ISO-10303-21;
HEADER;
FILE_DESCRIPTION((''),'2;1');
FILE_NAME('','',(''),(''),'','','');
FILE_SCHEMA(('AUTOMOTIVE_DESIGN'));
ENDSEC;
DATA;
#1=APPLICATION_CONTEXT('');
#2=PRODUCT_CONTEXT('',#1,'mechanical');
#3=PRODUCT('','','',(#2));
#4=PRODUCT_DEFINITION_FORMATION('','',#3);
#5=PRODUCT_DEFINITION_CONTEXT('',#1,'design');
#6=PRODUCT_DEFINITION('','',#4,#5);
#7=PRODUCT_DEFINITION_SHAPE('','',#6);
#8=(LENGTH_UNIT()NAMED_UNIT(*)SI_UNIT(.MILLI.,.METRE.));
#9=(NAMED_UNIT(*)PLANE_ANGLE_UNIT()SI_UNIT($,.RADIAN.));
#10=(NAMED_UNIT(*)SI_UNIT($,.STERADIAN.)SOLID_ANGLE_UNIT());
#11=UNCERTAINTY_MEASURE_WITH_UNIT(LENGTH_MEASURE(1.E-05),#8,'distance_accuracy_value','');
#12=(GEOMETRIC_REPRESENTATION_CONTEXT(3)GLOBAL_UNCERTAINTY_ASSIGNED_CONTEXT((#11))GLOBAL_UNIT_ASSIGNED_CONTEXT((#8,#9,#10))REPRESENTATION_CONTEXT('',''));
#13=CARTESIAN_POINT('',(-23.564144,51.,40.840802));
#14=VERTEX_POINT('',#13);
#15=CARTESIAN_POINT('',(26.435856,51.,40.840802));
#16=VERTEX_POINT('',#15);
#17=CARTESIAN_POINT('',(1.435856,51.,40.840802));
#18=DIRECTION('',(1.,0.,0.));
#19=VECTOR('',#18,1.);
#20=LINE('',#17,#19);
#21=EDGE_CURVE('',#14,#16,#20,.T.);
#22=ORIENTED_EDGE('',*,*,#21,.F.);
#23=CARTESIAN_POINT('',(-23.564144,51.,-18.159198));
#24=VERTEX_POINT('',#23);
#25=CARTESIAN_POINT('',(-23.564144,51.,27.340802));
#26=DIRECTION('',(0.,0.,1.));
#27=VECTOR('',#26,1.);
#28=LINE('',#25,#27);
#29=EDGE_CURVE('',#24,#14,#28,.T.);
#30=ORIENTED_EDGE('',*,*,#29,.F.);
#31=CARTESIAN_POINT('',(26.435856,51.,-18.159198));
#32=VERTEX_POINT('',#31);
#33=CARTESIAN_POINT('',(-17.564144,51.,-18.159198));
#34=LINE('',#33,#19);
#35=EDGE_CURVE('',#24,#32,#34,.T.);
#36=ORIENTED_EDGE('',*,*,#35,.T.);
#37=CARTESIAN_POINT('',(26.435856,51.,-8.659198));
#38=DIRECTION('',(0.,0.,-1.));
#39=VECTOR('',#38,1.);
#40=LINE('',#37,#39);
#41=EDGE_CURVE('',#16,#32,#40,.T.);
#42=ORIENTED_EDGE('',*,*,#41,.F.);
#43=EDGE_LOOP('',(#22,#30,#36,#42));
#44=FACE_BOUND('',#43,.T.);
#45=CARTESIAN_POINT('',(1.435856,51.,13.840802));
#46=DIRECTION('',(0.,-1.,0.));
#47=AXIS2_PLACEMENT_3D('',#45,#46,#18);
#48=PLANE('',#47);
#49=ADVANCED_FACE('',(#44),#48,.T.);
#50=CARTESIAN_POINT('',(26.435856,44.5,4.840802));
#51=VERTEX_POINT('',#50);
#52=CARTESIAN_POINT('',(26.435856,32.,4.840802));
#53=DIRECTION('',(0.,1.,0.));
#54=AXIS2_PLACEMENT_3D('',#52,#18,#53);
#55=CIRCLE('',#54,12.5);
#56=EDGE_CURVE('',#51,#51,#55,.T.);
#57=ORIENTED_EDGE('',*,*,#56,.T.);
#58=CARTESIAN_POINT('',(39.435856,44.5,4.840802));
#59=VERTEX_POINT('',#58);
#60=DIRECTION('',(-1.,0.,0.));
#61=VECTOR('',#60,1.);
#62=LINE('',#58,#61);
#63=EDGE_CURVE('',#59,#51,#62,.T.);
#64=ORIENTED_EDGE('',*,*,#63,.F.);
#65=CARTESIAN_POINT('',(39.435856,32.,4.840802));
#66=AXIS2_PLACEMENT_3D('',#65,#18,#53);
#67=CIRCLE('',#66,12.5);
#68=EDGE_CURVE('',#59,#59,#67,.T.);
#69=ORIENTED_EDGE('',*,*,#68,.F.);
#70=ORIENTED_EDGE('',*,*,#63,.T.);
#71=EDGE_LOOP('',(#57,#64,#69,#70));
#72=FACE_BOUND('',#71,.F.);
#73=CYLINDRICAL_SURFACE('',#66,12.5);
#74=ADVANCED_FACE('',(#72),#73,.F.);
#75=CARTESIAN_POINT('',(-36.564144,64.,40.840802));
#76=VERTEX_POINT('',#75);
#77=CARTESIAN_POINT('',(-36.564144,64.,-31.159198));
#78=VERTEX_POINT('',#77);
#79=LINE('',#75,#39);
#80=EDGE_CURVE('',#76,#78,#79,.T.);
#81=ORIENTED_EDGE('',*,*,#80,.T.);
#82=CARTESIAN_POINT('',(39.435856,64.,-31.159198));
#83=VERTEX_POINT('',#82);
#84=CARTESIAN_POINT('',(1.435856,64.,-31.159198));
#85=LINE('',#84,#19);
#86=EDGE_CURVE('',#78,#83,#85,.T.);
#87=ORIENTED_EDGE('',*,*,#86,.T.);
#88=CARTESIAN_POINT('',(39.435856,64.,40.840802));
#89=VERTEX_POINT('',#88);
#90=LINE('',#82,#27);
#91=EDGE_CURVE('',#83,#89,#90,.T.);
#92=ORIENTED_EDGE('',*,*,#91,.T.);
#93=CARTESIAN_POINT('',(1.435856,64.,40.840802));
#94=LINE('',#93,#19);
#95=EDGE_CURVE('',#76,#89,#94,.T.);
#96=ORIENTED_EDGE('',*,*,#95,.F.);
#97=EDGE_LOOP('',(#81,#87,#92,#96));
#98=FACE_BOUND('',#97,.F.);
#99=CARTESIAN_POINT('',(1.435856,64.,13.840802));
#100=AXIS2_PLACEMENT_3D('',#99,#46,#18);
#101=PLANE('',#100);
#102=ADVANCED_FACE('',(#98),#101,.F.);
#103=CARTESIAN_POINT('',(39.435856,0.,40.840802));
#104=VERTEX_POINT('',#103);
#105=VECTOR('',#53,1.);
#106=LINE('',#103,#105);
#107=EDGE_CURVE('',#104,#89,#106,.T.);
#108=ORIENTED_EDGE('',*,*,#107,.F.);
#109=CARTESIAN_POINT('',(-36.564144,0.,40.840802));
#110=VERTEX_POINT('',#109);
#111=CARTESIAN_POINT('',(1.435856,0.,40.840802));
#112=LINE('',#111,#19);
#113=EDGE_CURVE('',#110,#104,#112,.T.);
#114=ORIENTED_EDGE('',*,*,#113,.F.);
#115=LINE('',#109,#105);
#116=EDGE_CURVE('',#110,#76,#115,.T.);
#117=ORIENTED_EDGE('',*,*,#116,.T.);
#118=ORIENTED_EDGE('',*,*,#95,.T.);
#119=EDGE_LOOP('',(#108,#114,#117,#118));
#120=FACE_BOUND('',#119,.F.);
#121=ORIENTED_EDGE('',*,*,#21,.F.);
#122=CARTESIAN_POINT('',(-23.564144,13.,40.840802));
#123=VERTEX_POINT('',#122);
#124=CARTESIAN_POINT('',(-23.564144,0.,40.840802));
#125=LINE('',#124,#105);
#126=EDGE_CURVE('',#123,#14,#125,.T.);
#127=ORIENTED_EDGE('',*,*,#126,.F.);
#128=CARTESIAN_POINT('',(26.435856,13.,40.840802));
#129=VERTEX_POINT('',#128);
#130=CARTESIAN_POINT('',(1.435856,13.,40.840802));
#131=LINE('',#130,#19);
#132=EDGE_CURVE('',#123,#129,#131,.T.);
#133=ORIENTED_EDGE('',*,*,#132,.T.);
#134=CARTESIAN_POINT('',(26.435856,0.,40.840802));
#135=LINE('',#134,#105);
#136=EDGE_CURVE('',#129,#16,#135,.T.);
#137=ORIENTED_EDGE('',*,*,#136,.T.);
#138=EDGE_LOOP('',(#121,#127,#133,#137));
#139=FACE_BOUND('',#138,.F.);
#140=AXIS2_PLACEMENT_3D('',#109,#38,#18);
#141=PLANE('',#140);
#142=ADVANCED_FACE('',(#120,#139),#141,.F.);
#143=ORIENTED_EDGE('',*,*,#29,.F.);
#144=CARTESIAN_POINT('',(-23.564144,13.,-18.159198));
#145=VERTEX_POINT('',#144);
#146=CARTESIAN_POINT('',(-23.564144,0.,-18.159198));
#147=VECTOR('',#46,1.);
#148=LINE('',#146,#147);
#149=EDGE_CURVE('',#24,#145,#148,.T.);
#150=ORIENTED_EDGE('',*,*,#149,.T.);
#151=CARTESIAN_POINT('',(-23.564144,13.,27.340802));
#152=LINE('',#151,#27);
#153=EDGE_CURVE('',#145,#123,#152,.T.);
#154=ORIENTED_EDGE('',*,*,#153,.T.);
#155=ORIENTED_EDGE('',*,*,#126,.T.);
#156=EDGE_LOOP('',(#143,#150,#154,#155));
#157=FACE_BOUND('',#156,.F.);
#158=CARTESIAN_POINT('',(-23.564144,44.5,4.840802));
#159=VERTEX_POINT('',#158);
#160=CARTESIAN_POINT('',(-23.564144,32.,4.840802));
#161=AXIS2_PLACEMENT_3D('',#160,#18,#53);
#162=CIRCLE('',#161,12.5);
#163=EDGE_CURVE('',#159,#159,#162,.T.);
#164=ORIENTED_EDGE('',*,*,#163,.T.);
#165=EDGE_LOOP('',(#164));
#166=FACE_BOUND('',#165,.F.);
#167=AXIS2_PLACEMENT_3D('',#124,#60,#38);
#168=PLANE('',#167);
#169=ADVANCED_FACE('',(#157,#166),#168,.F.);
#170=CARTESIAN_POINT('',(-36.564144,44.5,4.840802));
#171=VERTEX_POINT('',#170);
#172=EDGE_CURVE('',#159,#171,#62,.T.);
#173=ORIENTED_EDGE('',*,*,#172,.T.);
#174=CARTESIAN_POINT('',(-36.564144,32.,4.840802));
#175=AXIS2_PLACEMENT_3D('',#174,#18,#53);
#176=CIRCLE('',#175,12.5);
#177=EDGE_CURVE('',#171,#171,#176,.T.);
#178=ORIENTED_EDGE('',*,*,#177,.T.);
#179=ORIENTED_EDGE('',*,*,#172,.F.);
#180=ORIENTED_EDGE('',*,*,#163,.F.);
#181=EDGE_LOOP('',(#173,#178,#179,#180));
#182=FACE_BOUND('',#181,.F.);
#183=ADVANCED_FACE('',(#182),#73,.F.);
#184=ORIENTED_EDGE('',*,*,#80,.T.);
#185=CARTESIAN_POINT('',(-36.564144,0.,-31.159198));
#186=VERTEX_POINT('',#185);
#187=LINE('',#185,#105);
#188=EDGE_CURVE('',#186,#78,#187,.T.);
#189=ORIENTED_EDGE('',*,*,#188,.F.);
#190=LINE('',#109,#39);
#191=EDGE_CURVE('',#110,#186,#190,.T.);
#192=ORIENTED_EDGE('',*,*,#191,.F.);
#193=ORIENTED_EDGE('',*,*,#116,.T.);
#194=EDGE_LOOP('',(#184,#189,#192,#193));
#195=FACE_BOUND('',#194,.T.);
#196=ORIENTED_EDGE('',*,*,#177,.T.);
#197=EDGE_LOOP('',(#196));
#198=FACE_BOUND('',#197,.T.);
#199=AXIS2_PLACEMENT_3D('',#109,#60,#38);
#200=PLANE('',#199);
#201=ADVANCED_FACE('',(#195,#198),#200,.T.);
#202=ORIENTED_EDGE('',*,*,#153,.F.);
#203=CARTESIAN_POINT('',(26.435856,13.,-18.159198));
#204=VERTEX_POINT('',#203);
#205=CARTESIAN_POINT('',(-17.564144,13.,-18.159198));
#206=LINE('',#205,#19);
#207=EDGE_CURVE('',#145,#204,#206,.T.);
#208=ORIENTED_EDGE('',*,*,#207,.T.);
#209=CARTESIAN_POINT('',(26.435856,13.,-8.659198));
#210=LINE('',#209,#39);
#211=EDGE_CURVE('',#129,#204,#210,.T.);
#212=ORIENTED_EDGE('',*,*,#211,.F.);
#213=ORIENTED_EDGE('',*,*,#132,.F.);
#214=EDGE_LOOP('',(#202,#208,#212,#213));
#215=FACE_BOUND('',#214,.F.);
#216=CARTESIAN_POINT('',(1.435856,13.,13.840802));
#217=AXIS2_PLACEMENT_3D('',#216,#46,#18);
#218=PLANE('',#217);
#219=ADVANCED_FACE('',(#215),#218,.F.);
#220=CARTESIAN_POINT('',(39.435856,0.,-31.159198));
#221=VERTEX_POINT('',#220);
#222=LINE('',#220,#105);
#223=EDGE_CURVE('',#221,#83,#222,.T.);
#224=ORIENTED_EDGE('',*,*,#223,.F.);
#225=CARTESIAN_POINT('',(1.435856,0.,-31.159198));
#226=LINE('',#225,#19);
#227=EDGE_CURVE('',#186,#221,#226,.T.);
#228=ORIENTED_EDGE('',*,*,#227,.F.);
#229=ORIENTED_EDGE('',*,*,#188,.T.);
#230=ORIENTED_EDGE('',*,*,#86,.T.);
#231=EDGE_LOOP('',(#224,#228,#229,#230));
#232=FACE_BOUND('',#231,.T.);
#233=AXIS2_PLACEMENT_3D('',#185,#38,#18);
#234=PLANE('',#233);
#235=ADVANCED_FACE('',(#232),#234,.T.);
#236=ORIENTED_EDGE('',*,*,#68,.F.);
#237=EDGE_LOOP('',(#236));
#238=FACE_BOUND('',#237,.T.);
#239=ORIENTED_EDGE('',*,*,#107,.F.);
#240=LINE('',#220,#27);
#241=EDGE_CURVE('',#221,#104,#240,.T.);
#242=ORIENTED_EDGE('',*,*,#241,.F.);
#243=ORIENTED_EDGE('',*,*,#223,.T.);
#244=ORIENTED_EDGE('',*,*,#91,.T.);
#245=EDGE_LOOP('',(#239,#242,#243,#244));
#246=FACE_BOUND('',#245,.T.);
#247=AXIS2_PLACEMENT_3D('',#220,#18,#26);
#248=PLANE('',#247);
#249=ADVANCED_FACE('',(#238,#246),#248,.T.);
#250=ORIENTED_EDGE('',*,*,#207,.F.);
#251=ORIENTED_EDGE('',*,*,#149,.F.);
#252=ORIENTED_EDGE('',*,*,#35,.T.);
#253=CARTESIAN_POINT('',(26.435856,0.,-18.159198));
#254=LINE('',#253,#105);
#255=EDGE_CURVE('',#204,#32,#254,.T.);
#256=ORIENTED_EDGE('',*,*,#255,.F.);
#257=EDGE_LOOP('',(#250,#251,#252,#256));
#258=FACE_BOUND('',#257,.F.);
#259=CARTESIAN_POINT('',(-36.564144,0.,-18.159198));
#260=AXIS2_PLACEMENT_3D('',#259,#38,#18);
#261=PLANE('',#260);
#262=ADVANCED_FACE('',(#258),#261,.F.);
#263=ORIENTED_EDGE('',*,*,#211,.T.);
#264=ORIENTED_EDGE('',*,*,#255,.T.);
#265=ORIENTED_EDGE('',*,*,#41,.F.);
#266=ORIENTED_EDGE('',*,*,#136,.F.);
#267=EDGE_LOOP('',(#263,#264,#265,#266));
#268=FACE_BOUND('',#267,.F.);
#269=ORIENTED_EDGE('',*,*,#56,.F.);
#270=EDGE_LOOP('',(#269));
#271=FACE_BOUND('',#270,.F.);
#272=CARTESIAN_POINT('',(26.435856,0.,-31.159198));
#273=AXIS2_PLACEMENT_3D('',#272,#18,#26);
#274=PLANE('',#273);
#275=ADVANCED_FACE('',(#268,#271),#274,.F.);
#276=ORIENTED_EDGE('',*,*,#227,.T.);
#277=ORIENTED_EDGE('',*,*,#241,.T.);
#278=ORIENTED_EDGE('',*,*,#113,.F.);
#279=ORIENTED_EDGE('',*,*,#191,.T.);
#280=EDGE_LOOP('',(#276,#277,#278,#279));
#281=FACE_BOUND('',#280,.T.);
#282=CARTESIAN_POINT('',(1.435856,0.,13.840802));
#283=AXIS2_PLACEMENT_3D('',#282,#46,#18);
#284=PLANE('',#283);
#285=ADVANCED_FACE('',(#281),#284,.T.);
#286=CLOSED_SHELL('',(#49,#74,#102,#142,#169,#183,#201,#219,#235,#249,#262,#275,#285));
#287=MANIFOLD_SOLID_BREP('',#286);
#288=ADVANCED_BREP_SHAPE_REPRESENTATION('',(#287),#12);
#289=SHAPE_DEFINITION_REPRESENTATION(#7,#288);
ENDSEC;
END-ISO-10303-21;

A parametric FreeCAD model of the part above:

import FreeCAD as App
import Part
import Sketcher


def faces_at(feature, points):
    """Names of the faces that lie closest to the given points."""
    faces = feature.Shape.Faces
    near = lambda p: min(range(len(faces)), key=lambda i: faces[i].distToShape(Part.Vertex(*p))[0])
    return sorted({f"Face{near(p) + 1}" for p in points})


def add_polygon(sketch, points):
    """Adds a closed chain of lines whose ends are joined by coincident constraints."""
    first, n = sketch.GeometryCount, len(points)
    for a, b in zip(points, points[1:] + points[:1]):
        sketch.addGeometry(Part.LineSegment(App.Vector(*a, 0), App.Vector(*b, 0)), False)
    for i in range(n):
        sketch.addConstraint(Sketcher.Constraint("Coincident", first + i, 2, first + (i + 1) % n, 1))

doc = App.newDocument("Part")
body = doc.addObject("PartDesign::Body", "Body")

# Sketch on XZ plane
sketch1 = body.newObject("Sketcher::SketchObject", "Sketch")
sketch1.AttachmentSupport = (doc.getObject("XZ_Plane"), [""])
sketch1.MapMode = "FlatFace"
add_polygon(sketch1, [(-36.564144, 40.840802), (-36.564144, -31.159198), (39.435856, -31.159198), (39.435856, 40.840802)])  # lines 0-3
sketch1.addConstraint([
    Sketcher.Constraint("Vertical", 0),
    Sketcher.Constraint("Horizontal", 1),
    Sketcher.Constraint("Vertical", 2),
    Sketcher.Constraint("Horizontal", 3),
    Sketcher.Constraint("DistanceX", 1, 1, 1, 2, 76.0),
    Sketcher.Constraint("DistanceY", 0, 2, 0, 1, 72.0),
    Sketcher.Constraint("DistanceY", 0, 2, -1, 1, 31.159198),
    Sketcher.Constraint("DistanceX", 0, 2, -1, 1, 36.564144),
])
pad1 = body.newObject("PartDesign::Pad", "Pad")
pad1.Profile = sketch1
pad1.Length = 64
pad1.Reversed = True
doc.recompute()

thickness = body.newObject("PartDesign::Thickness", "Thickness")
thickness.Base = (pad1, faces_at(pad1, [(1.436, 32, 40.841)]))
thickness.Value = 13
thickness.Reversed = True
thickness.Join = "Arc"

# Sketch on YZ plane
sketch2 = body.newObject("Sketcher::SketchObject", "Sketch001")
sketch2.AttachmentSupport = (doc.getObject("YZ_Plane"), [""])
sketch2.MapMode = "FlatFace"
sketch2.AttachmentOffset = App.Placement(App.Vector(0, 0, 39.435856), App.Rotation())
sketch2.addGeometry(Part.Circle(App.Vector(32, 4.840802, 0), App.Vector(0, 0, 1), 12.5), False)
sketch2.addConstraint([
    Sketcher.Constraint("Diameter", 0, 25.0),
    Sketcher.Constraint("DistanceX", -1, 1, 0, 3, 32.0),
    Sketcher.Constraint("DistanceY", -1, 1, 0, 3, 4.840802),
])
pocket1 = body.newObject("PartDesign::Pocket", "Pocket")
pocket1.Profile = sketch2
pocket1.Length = 103.3

doc.recompute()
